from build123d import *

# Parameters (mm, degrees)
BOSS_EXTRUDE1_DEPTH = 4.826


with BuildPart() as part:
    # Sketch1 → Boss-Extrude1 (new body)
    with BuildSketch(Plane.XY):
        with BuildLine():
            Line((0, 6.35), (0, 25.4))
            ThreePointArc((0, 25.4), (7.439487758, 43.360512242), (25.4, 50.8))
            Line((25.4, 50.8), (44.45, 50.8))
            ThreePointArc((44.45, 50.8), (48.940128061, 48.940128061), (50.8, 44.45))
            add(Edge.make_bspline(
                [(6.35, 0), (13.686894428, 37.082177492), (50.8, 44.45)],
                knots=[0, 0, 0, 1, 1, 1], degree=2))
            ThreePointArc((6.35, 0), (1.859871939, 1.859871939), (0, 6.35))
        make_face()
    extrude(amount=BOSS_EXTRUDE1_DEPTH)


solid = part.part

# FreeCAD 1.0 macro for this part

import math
import FreeCAD as App
import Part
import Sketcher
from FreeCAD import Vector
Q = App.Units.Quantity

doc = App.newDocument("Part")
params = doc.addObject("Spreadsheet::Sheet", "Params")
for row, (alias, value) in enumerate([
    ("sketch1_radius", "1 in"),
    ("sketch1_radius2", "0.25 in"),
    ("sketch1_radius3", "0.25 in"),
    ("sketch1_width", "0.75 in"),
    ("sketch1_height", "0.75 in"),
    ("pad1_length", "0.19 in"),
], start=1):
    params.set(f"A{row}", alias)
    params.set(f"B{row}", "=" + value)
    params.setAlias(f"B{row}", alias)

body = doc.addObject("PartDesign::Body", "Body")

sketch1 = doc.addObject("Sketcher::SketchObject", "Sketch")
body.addObject(sketch1)
sketch1.AttachmentSupport = (doc.XY_Plane, [""])
sketch1.MapMode = "FlatFace"
sketch1.addGeometry(Part.LineSegment(Vector(0, 25.4, 0), Vector(0, 6.35, 0)), False)
sketch1.addGeometry(Part.ArcOfCircle(Part.Circle(Vector(6.35, 6.35, 0), Vector(0, 0, 1), 6.35), math.radians(180), math.radians(270)), False)
sketch1.addGeometry(Part.BSplineCurve([Vector(6.35, 0, 0), Vector(13.686894, 37.082177, 0), Vector(50.8, 44.45, 0)], [3, 3], [0, 1], False, 2, [1, 1, 1], False), False)
sketch1.addGeometry(Part.ArcOfCircle(Part.Circle(Vector(44.45, 44.45, 0), Vector(0, 0, 1), 6.35), math.radians(0), math.radians(90)), False)
sketch1.addGeometry(Part.LineSegment(Vector(44.45, 50.8, 0), Vector(25.4, 50.8, 0)), False)
sketch1.addGeometry(Part.ArcOfCircle(Part.Circle(Vector(25.4, 25.4, 0), Vector(0, 0, 1), 25.4), math.radians(90), math.radians(180)), False)
sketch1.addConstraint(Sketcher.Constraint("Block", 2))
sketch1.addConstraint(Sketcher.Constraint("Coincident", 0, 2, 1, 1))
sketch1.addConstraint(Sketcher.Constraint("Coincident", 1, 2, 2, 1))
sketch1.addConstraint(Sketcher.Constraint("Coincident", 2, 2, 3, 1))
sketch1.addConstraint(Sketcher.Constraint("Coincident", 3, 2, 4, 1))
sketch1.addConstraint(Sketcher.Constraint("Coincident", 4, 2, 5, 1))
sketch1.addConstraint(Sketcher.Constraint("Coincident", 5, 2, 0, 1))
sketch1.addConstraint(Sketcher.Constraint("Vertical", 0))
sketch1.addConstraint(Sketcher.Constraint("Horizontal", 4))
sketch1.addConstraint(Sketcher.Constraint("PointOnObject", 0, 2, -2))
sketch1.addConstraint(Sketcher.Constraint("Radius", 5, Q("1 in")))
sketch1.addConstraint(Sketcher.Constraint("Radius", 1, Q("0.25 in")))
sketch1.addConstraint(Sketcher.Constraint("Radius", 3, Q("0.25 in")))
sketch1.addConstraint(Sketcher.Constraint("DistanceY", -1, 1, 5, 3, Q("1 in")))
sketch1.addConstraint(Sketcher.Constraint("DistanceX", -1, 1, 4, 2, Q("1 in")))
sketch1.addConstraint(Sketcher.Constraint("DistanceY", -1, 1, 5, 2, Q("1 in")))
sketch1.addConstraint(Sketcher.Constraint("DistanceX", 4, 2, 4, 1, Q("0.75 in")))
sketch1.addConstraint(Sketcher.Constraint("DistanceY", 0, 2, 0, 1, Q("0.75 in")))
sketch1.setExpression("Constraints[10]", "Params.sketch1_radius")
sketch1.setExpression("Constraints[11]", "Params.sketch1_radius2")
sketch1.setExpression("Constraints[12]", "Params.sketch1_radius3")
sketch1.setExpression("Constraints[16]", "Params.sketch1_width")
sketch1.setExpression("Constraints[17]", "Params.sketch1_height")
pad1 = doc.addObject("PartDesign::Pad", "Pad")
body.addObject(pad1)
pad1.Profile = sketch1
pad1.setExpression("Length", "Params.pad1_length")

doc.recompute()
